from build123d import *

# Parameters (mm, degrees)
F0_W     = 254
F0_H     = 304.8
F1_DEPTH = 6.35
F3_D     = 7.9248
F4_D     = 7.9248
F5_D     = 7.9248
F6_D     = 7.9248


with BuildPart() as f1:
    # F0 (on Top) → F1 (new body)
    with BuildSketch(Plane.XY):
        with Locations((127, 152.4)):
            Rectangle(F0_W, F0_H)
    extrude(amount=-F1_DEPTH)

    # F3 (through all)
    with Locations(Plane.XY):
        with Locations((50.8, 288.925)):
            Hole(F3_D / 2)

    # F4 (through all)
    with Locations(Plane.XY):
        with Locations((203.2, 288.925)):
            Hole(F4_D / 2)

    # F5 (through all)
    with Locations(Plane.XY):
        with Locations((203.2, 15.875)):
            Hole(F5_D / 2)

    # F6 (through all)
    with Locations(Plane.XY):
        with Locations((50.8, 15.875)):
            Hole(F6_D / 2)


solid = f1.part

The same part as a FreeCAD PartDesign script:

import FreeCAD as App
import Part
import Sketcher

V = App.Vector
Q = App.Units.Quantity

doc = App.newDocument("Part")
body = doc.addObject("PartDesign::Body", "Body")

# Sketch on XY plane
sketch1 = body.newObject("Sketcher::SketchObject", "Sketch")
sketch1.AttachmentSupport = (doc.getObject("XY_Plane"), [""])
sketch1.MapMode = "FlatFace"
sketch1.addGeometry(Part.LineSegment(V(0, 305, 0), V(0, 0, 0)), False)
sketch1.addGeometry(Part.LineSegment(V(0, 0, 0), V(254, 0, 0)), False)
sketch1.addGeometry(Part.LineSegment(V(254, 0, 0), V(254, 305, 0)), False)
sketch1.addGeometry(Part.LineSegment(V(254, 305, 0), V(0, 305, 0)), False)
sketch1.addConstraint(Sketcher.Constraint("Coincident", 0, 2, 1, 1))
sketch1.addConstraint(Sketcher.Constraint("Coincident", 1, 2, 2, 1))
sketch1.addConstraint(Sketcher.Constraint("Coincident", 2, 2, 3, 1))
sketch1.addConstraint(Sketcher.Constraint("Coincident", 3, 2, 0, 1))
sketch1.addConstraint(Sketcher.Constraint("Vertical", 0))
sketch1.addConstraint(Sketcher.Constraint("Horizontal", 1))
sketch1.addConstraint(Sketcher.Constraint("Vertical", 2))
sketch1.addConstraint(Sketcher.Constraint("Horizontal", 3))
sketch1.addConstraint(Sketcher.Constraint("Coincident", 0, 2, -1, 1))
sketch1.addConstraint(Sketcher.Constraint("DistanceX", 1, 1, 1, 2, Q("10 in")))
sketch1.addConstraint(Sketcher.Constraint("DistanceY", 0, 2, 0, 1, Q("12 in")))
pad1 = body.newObject("PartDesign::Pad", "Pad")
pad1.Profile = sketch1
pad1.Length = Q("0.25 in")
pad1.Reversed = True

# Sketch on XY plane
sketch2 = body.newObject("Sketcher::SketchObject", "Sketch001")
sketch2.AttachmentSupport = (doc.getObject("XY_Plane"), [""])
sketch2.MapMode = "FlatFace"
sketch2.addGeometry(Part.Circle(V(50.8, 288.9, 0), V(0, 0, 1), 4), False)
sketch2.addConstraint(Sketcher.Constraint("Diameter", 0, Q("0.312 in")))
sketch2.addConstraint(Sketcher.Constraint("DistanceX", -1, 1, 0, 3, Q("2 in")))
sketch2.addConstraint(Sketcher.Constraint("DistanceY", -1, 1, 0, 3, Q("11.375 in")))
doc.recompute()
hole = body.newObject("PartDesign::Hole", "Hole")
hole.Profile = sketch2
hole.ThreadType = "None"
hole.Diameter = Q("0.312 in")
hole.DepthType = "ThroughAll"

# Sketch on XY plane
sketch3 = body.newObject("Sketcher::SketchObject", "Sketch002")
sketch3.AttachmentSupport = (doc.getObject("XY_Plane"), [""])
sketch3.MapMode = "FlatFace"
sketch3.addGeometry(Part.Circle(V(203.2, 288.9, 0), V(0, 0, 1), 4), False)
sketch3.addConstraint(Sketcher.Constraint("Diameter", 0, Q("0.312 in")))
sketch3.addConstraint(Sketcher.Constraint("DistanceX", -1, 1, 0, 3, Q("8 in")))
sketch3.addConstraint(Sketcher.Constraint("DistanceY", -1, 1, 0, 3, Q("11.375 in")))
doc.recompute()
hole2 = body.newObject("PartDesign::Hole", "Hole001")
hole2.Profile = sketch3
hole2.ThreadType = "None"
hole2.Diameter = Q("0.312 in")
hole2.DepthType = "ThroughAll"

# Sketch on XY plane
sketch4 = body.newObject("Sketcher::SketchObject", "Sketch003")
sketch4.AttachmentSupport = (doc.getObject("XY_Plane"), [""])
sketch4.MapMode = "FlatFace"
sketch4.addGeometry(Part.Circle(V(203.2, 15.9, 0), V(0, 0, 1), 4), False)
sketch4.addConstraint(Sketcher.Constraint("Diameter", 0, Q("0.312 in")))
sketch4.addConstraint(Sketcher.Constraint("DistanceX", -1, 1, 0, 3, Q("8 in")))
sketch4.addConstraint(Sketcher.Constraint("DistanceY", -1, 1, 0, 3, Q("0.625 in")))
doc.recompute()
hole3 = body.newObject("PartDesign::Hole", "Hole002")
hole3.Profile = sketch4
hole3.ThreadType = "None"
hole3.Diameter = Q("0.312 in")
hole3.DepthType = "ThroughAll"

# Sketch on XY plane
sketch5 = body.newObject("Sketcher::SketchObject", "Sketch004")
sketch5.AttachmentSupport = (doc.getObject("XY_Plane"), [""])
sketch5.MapMode = "FlatFace"
sketch5.addGeometry(Part.Circle(V(50.8, 15.9, 0), V(0, 0, 1), 4), False)
sketch5.addConstraint(Sketcher.Constraint("Diameter", 0, Q("0.312 in")))
sketch5.addConstraint(Sketcher.Constraint("DistanceX", -1, 1, 0, 3, Q("2 in")))
sketch5.addConstraint(Sketcher.Constraint("DistanceY", -1, 1, 0, 3, Q("0.625 in")))
doc.recompute()
hole4 = body.newObject("PartDesign::Hole", "Hole003")
hole4.Profile = sketch5
hole4.ThreadType = "None"
hole4.Diameter = Q("0.312 in")
hole4.DepthType = "ThroughAll"

doc.recompute()
